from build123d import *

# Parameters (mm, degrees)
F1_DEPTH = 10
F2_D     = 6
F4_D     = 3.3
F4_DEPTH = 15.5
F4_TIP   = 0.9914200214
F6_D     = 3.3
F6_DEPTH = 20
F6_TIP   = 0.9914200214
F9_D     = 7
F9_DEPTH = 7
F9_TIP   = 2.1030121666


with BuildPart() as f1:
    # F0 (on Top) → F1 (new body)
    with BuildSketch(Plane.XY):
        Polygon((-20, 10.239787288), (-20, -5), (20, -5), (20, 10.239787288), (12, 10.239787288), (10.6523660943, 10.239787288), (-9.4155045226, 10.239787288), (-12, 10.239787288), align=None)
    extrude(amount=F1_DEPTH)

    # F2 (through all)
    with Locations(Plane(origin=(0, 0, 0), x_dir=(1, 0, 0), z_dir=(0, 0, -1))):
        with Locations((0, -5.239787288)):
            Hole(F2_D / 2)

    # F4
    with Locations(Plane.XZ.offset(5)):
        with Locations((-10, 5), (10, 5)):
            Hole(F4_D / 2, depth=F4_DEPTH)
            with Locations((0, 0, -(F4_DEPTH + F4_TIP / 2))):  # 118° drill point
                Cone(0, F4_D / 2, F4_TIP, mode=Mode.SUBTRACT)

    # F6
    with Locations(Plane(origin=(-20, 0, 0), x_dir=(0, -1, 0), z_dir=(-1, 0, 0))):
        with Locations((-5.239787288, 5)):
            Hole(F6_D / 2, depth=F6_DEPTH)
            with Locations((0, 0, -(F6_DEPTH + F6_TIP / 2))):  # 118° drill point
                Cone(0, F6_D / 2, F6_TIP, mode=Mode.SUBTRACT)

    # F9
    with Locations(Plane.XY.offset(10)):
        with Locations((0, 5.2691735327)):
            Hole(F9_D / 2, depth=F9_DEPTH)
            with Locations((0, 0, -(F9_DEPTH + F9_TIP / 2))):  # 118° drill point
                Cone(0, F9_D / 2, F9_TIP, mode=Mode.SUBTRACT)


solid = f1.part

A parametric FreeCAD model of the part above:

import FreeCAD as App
import Part
import Sketcher


def add_polygon(sketch, points):
    """Adds a closed chain of lines whose ends are joined by coincident constraints."""
    first, n = sketch.GeometryCount, len(points)
    for a, b in zip(points, points[1:] + points[:1]):
        sketch.addGeometry(Part.LineSegment(App.Vector(*a, 0), App.Vector(*b, 0)), False)
    for i in range(n):
        sketch.addConstraint(Sketcher.Constraint("Coincident", first + i, 2, first + (i + 1) % n, 1))

doc = App.newDocument("Part")
body = doc.addObject("PartDesign::Body", "Body")

# Sketch on XY plane
sketch1 = body.newObject("Sketcher::SketchObject", "Sketch")
sketch1.AttachmentSupport = (doc.getObject("XY_Plane"), [""])
sketch1.MapMode = "FlatFace"
add_polygon(sketch1, [(-20, 10), (-20, -5), (20, -5), (20, 10)])  # lines 0-3
sketch1.addConstraint(Sketcher.Constraint("Vertical", 0))
sketch1.addConstraint(Sketcher.Constraint("Horizontal", 1))
sketch1.addConstraint(Sketcher.Constraint("Vertical", 2))
sketch1.addConstraint(Sketcher.Constraint("Horizontal", 3))
sketch1.addConstraint(Sketcher.Constraint("DistanceX", 1, 1, 1, 2, 40.0))
sketch1.addConstraint(Sketcher.Constraint("DistanceX", 0, 2, -1, 1, 20.0))
sketch1.addConstraint(Sketcher.Constraint("DistanceY", 0, 2, -1, 1, 5.0))
sketch1.addConstraint(Sketcher.Constraint("DistanceY", 0, 2, 0, 1, 15.239787))
pad1 = body.newObject("PartDesign::Pad", "Pad")
pad1.Profile = sketch1
pad1.Length = 10

# Sketch on XY plane
sketch2 = body.newObject("Sketcher::SketchObject", "Sketch001")
sketch2.AttachmentSupport = (doc.getObject("XY_Plane"), [""])
sketch2.MapMode = "FlatFace"
sketch2.addGeometry(Part.Circle(App.Vector(0, 5.2, 0), App.Vector(0, 0, 1), 3), False)
sketch2.addConstraint(Sketcher.Constraint("PointOnObject", 0, 3, -2))
sketch2.addConstraint(Sketcher.Constraint("Diameter", 0, 6.0))
sketch2.addConstraint(Sketcher.Constraint("DistanceY", -1, 1, 0, 3, 5.239787))
doc.recompute()
hole = body.newObject("PartDesign::Hole", "Hole")
hole.Profile = sketch2
hole.ThreadType = "None"
hole.Diameter = 6
hole.DepthType = "ThroughAll"
hole.Reversed = True

# Sketch on XZ plane
sketch3 = body.newObject("Sketcher::SketchObject", "Sketch002")
sketch3.AttachmentSupport = (doc.getObject("XZ_Plane"), [""])
sketch3.MapMode = "FlatFace"
sketch3.AttachmentOffset = App.Placement(App.Vector(0, 0, 5), App.Rotation())
sketch3.addGeometry(Part.Circle(App.Vector(-10, 5, 0), App.Vector(0, 0, 1), 1.6), False)
sketch3.addGeometry(Part.Circle(App.Vector(10, 5, 0), App.Vector(0, 0, 1), 1.6), False)
sketch3.addConstraint(Sketcher.Constraint("Equal", 0, 1))
sketch3.addConstraint(Sketcher.Constraint("Symmetric", 0, 3, 1, 3, -2))
sketch3.addConstraint(Sketcher.Constraint("Diameter", 0, 3.3))
sketch3.addConstraint(Sketcher.Constraint("DistanceX", 0, 3, -1, 1, 10.0))
sketch3.addConstraint(Sketcher.Constraint("DistanceY", -1, 1, 0, 3, 5.0))
doc.recompute()
hole2 = body.newObject("PartDesign::Hole", "Hole001")
hole2.Profile = sketch3
hole2.ThreadType = "None"
hole2.Diameter = 3.3
hole2.DepthType = "Dimension"
hole2.Depth = 15.5
hole2.DrillPoint = "Angled"
hole2.DrillPointAngle = 118

# Sketch on YZ plane
sketch4 = body.newObject("Sketcher::SketchObject", "Sketch003")
sketch4.AttachmentSupport = (doc.getObject("YZ_Plane"), [""])
sketch4.MapMode = "FlatFace"
sketch4.AttachmentOffset = App.Placement(App.Vector(0, 0, -20), App.Rotation())
sketch4.addGeometry(Part.Circle(App.Vector(5.2, 5, 0), App.Vector(0, 0, 1), 1.6), False)
sketch4.addConstraint(Sketcher.Constraint("Diameter", 0, 3.3))
sketch4.addConstraint(Sketcher.Constraint("DistanceY", -1, 1, 0, 3, 5.0))
sketch4.addConstraint(Sketcher.Constraint("DistanceX", -1, 1, 0, 3, 5.239787))
doc.recompute()
hole3 = body.newObject("PartDesign::Hole", "Hole002")
hole3.Profile = sketch4
hole3.ThreadType = "None"
hole3.Diameter = 3.3
hole3.DepthType = "Dimension"
hole3.Depth = 20
hole3.DrillPoint = "Angled"
hole3.DrillPointAngle = 118
hole3.Reversed = True

# Sketch on XY plane
sketch5 = body.newObject("Sketcher::SketchObject", "Sketch004")
sketch5.AttachmentSupport = (doc.getObject("XY_Plane"), [""])
sketch5.MapMode = "FlatFace"
sketch5.AttachmentOffset = App.Placement(App.Vector(0, 0, 10), App.Rotation())
sketch5.addGeometry(Part.Circle(App.Vector(0, 5.3, 0), App.Vector(0, 0, 1), 3.5), False)
sketch5.addConstraint(Sketcher.Constraint("PointOnObject", 0, 3, -2))
sketch5.addConstraint(Sketcher.Constraint("Diameter", 0, 7.0))
sketch5.addConstraint(Sketcher.Constraint("DistanceY", -1, 1, 0, 3, 5.269174))
doc.recompute()
hole4 = body.newObject("PartDesign::Hole", "Hole003")
hole4.Profile = sketch5
hole4.ThreadType = "None"
hole4.Diameter = 7
hole4.DepthType = "Dimension"
hole4.Depth = 7
hole4.DrillPoint = "Angled"
hole4.DrillPointAngle = 118

doc.recompute()
